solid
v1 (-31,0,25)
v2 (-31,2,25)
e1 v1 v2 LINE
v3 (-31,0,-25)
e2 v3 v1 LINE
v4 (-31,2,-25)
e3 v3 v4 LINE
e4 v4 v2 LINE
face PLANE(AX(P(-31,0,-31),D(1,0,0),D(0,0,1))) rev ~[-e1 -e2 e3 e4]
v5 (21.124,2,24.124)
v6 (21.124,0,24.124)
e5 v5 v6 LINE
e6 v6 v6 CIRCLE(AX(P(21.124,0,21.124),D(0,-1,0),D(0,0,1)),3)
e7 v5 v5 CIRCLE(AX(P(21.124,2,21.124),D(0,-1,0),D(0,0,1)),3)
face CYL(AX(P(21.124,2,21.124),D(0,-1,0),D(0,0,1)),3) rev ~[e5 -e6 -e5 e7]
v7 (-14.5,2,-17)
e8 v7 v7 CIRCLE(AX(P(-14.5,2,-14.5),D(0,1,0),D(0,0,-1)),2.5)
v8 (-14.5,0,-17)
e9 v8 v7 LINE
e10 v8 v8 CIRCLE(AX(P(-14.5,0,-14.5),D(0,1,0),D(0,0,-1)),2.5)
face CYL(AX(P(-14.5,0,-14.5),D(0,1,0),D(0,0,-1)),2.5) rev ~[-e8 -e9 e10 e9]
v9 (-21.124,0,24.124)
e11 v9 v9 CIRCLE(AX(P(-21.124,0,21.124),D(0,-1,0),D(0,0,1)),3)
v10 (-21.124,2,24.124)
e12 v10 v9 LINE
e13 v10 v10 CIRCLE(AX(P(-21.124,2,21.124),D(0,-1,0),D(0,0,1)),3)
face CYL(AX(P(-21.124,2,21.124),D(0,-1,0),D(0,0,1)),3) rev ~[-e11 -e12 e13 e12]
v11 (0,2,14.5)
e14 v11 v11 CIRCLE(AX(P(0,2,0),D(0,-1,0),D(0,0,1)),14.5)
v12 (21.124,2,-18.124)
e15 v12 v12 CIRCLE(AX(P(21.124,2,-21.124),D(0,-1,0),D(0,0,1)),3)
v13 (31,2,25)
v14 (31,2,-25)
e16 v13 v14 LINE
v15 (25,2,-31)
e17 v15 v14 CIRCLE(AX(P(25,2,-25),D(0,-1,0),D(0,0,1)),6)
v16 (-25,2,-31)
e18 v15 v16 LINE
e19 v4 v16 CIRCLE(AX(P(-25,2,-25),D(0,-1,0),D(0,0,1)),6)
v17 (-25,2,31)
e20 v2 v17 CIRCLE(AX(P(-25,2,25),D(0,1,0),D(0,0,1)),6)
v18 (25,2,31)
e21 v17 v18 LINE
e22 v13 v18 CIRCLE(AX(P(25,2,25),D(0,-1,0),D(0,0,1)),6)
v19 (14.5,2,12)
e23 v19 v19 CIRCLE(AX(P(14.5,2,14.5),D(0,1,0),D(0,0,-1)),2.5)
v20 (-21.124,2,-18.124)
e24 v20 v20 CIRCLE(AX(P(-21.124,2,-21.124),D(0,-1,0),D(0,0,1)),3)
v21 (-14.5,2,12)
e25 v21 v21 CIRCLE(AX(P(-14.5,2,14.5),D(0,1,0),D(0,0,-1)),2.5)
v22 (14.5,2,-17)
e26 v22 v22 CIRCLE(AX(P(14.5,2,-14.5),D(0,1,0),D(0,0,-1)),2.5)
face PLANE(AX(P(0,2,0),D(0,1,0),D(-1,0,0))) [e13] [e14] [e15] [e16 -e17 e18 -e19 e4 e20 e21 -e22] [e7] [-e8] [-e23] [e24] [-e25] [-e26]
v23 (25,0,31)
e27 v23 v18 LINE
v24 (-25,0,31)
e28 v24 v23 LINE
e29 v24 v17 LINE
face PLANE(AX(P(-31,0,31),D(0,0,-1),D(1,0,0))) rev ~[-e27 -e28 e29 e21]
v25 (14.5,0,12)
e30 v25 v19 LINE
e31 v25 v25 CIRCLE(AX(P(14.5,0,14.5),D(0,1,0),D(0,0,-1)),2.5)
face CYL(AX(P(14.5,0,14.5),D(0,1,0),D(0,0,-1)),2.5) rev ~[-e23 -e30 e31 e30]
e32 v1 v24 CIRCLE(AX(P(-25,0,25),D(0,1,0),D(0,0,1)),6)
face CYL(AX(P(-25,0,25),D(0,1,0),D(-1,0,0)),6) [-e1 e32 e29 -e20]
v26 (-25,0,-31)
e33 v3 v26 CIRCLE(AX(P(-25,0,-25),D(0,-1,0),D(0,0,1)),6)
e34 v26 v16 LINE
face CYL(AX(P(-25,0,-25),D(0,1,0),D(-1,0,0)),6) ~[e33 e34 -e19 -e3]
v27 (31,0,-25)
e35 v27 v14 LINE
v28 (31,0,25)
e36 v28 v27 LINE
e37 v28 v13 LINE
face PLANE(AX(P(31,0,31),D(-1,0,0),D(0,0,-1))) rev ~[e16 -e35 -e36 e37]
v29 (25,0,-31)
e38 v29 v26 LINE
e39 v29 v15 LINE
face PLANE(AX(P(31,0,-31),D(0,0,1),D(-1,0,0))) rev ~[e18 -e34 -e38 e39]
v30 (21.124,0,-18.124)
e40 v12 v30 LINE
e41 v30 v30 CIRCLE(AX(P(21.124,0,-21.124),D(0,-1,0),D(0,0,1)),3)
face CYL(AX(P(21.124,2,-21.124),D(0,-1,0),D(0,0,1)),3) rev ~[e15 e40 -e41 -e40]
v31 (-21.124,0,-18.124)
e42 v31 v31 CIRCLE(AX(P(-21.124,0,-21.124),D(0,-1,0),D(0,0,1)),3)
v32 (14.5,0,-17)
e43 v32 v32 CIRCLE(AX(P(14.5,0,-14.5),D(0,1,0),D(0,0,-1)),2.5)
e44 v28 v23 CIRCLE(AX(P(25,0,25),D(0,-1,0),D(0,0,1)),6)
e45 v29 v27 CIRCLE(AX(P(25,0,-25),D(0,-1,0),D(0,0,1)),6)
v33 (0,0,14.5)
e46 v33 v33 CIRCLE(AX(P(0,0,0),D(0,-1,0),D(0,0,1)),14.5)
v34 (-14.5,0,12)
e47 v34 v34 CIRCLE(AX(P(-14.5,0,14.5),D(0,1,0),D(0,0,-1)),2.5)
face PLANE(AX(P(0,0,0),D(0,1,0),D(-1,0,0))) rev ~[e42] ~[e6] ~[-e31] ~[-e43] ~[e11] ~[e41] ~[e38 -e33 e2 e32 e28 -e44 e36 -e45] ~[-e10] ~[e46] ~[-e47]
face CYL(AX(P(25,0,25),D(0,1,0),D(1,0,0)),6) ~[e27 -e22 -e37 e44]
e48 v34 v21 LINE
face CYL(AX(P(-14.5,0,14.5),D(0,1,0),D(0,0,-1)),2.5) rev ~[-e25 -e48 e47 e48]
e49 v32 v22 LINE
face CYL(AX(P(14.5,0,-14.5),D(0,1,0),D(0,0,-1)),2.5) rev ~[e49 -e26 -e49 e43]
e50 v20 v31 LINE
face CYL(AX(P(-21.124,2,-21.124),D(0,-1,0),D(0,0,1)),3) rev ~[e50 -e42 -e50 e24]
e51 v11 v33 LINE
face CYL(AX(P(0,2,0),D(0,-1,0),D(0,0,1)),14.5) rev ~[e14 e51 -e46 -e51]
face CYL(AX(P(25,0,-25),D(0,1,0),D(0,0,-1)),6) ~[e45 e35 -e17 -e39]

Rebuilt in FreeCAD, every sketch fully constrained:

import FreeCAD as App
import Part
import Sketcher
from FreeCAD import Vector


def edges_at(feature, points):
    """Names of the edges that pass closest to the given points."""
    edges = feature.Shape.Edges
    near = lambda p: min(range(len(edges)), key=lambda i: edges[i].distToShape(Part.Vertex(*p))[0])
    return sorted({f"Edge{near(p) + 1}" for p in points})

doc = App.newDocument("Part")
body = doc.addObject("PartDesign::Body", "Body")

sketch1 = doc.addObject("Sketcher::SketchObject", "Sketch")
body.addObject(sketch1)
sketch1.AttachmentSupport = (doc.XZ_Plane, [""])
sketch1.MapMode = "FlatFace"
sketch1.addGeometry([
    Part.LineSegment(Vector(-31, -31, 0), Vector(-31, 31, 0)),
    Part.LineSegment(Vector(-31, 31, 0), Vector(31, 31, 0)),
    Part.LineSegment(Vector(31, 31, 0), Vector(31, -31, 0)),
    Part.LineSegment(Vector(31, -31, 0), Vector(-31, -31, 0)),
], False)
sketch1.addConstraint([
    Sketcher.Constraint("Coincident", 0, 2, 1, 1),
    Sketcher.Constraint("Coincident", 1, 2, 2, 1),
    Sketcher.Constraint("Coincident", 2, 2, 3, 1),
    Sketcher.Constraint("Coincident", 3, 2, 0, 1),
    Sketcher.Constraint("Vertical", 0),
    Sketcher.Constraint("Horizontal", 1),
    Sketcher.Constraint("Vertical", 2),
    Sketcher.Constraint("Horizontal", 3),
    Sketcher.Constraint("Symmetric", 0, 2, 2, 2, -1, 1),
    Sketcher.Constraint("Equal", 3, 0),
    Sketcher.Constraint("DistanceX", 1, 1, 1, 2, 62.0),
])
pad1 = doc.addObject("PartDesign::Pad", "Pad")
body.addObject(pad1)
pad1.Profile = sketch1
pad1.Length = 2
pad1.Reversed = True
doc.recompute()

fillet = doc.addObject("PartDesign::Fillet", "Fillet")
body.addObject(fillet)
fillet.Base = (pad1, edges_at(pad1, [
    (-31, 1, 31),
    (31, 1, 31),
    (31, 1, -31),
    (-31, 1, -31),
]))
fillet.Radius = 6

sketch2 = doc.addObject("Sketcher::SketchObject", "Sketch001")
body.addObject(sketch2)
sketch2.AttachmentSupport = (doc.XZ_Plane, [""])
sketch2.MapMode = "FlatFace"
sketch2.AttachmentOffset = App.Placement(Vector(0, 0, -2), App.Rotation())
sketch2.addGeometry([
    Part.Circle(Vector(21.124, -21.124, 0), Vector(0, 0, 1), 3),
    Part.Circle(Vector(21.124, 21.124, 0), Vector(0, 0, 1), 3),
    Part.Circle(Vector(-21.124, -21.124, 0), Vector(0, 0, 1), 3),
    Part.Circle(Vector(-21.124, 21.124, 0), Vector(0, 0, 1), 3),
], False)
sketch2.addConstraint([
    Sketcher.Constraint("Equal", 0, 1),
    Sketcher.Constraint("Equal", 1, 2),
    Sketcher.Constraint("Equal", 2, 3),
    Sketcher.Constraint("Symmetric", 1, 3, 2, 3, -1, 1),
    Sketcher.Constraint("Symmetric", 0, 3, 3, 3, -1, 1),
    Sketcher.Constraint("Symmetric", 0, 3, 2, 3, -2),
    Sketcher.Constraint("Diameter", 0, 6.0),
    Sketcher.Constraint("DistanceX", -1, 1, 0, 3, 21.124),
    Sketcher.Constraint("DistanceY", 0, 3, -1, 1, 21.124),
])
doc.recompute()
hole = doc.addObject("PartDesign::Hole", "Hole")
body.addObject(hole)
hole.Profile = sketch2
hole.ThreadType = "None"
hole.Diameter = 6
hole.DepthType = "Dimension"
hole.Depth = 2
hole.DrillPoint = "Flat"
hole.Reversed = True

sketch3 = doc.addObject("Sketcher::SketchObject", "Sketch002")
body.addObject(sketch3)
sketch3.AttachmentSupport = (doc.XZ_Plane, [""])
sketch3.MapMode = "FlatFace"
sketch3.AttachmentOffset = App.Placement(Vector(0, 0, -2), App.Rotation())
sketch3.addGeometry(Part.Circle(Vector(0, 0, 0), Vector(0, 0, 1), 14.5), False)
sketch3.addConstraint([
    Sketcher.Constraint("Coincident", 0, 3, -1, 1),
    Sketcher.Constraint("Diameter", 0, 29.0),
])
doc.recompute()
hole2 = doc.addObject("PartDesign::Hole", "Hole001")
body.addObject(hole2)
hole2.Profile = sketch3
hole2.ThreadType = "None"
hole2.Diameter = 29
hole2.DepthType = "Dimension"
hole2.Depth = 2
hole2.DrillPoint = "Flat"
hole2.Reversed = True

sketch4 = doc.addObject("Sketcher::SketchObject", "Sketch003")
body.addObject(sketch4)
sketch4.AttachmentSupport = (doc.XZ_Plane, [""])
sketch4.MapMode = "FlatFace"
sketch4.addGeometry([
    Part.Circle(Vector(-14.5, 14.5, 0), Vector(0, 0, 1), 2.5),
    Part.Circle(Vector(14.5, 14.5, 0), Vector(0, 0, 1), 2.5),
    Part.Circle(Vector(-14.5, -14.5, 0), Vector(0, 0, 1), 2.5),
    Part.Circle(Vector(14.5, -14.5, 0), Vector(0, 0, 1), 2.5),
], False)
sketch4.addConstraint([
    Sketcher.Constraint("Equal", 0, 1),
    Sketcher.Constraint("Equal", 1, 2),
    Sketcher.Constraint("Equal", 2, 3),
    Sketcher.Constraint("Symmetric", 1, 3, 2, 3, -1, 1),
    Sketcher.Constraint("Symmetric", 0, 3, 3, 3, -1, 1),
    Sketcher.Constraint("Symmetric", 0, 3, 1, 3, -2),
    Sketcher.Constraint("Diameter", 0, 5.0),
    Sketcher.Constraint("DistanceX", 0, 3, 1, 3, 29.0),
    Sketcher.Constraint("DistanceY", 2, 3, 0, 3, 29.0),
])
doc.recompute()
hole3 = doc.addObject("PartDesign::Hole", "Hole002")
body.addObject(hole3)
hole3.Profile = sketch4
hole3.ThreadType = "None"
hole3.Diameter = 5
hole3.DepthType = "Dimension"
hole3.Depth = 2
hole3.DrillPoint = "Flat"

doc.recompute()
